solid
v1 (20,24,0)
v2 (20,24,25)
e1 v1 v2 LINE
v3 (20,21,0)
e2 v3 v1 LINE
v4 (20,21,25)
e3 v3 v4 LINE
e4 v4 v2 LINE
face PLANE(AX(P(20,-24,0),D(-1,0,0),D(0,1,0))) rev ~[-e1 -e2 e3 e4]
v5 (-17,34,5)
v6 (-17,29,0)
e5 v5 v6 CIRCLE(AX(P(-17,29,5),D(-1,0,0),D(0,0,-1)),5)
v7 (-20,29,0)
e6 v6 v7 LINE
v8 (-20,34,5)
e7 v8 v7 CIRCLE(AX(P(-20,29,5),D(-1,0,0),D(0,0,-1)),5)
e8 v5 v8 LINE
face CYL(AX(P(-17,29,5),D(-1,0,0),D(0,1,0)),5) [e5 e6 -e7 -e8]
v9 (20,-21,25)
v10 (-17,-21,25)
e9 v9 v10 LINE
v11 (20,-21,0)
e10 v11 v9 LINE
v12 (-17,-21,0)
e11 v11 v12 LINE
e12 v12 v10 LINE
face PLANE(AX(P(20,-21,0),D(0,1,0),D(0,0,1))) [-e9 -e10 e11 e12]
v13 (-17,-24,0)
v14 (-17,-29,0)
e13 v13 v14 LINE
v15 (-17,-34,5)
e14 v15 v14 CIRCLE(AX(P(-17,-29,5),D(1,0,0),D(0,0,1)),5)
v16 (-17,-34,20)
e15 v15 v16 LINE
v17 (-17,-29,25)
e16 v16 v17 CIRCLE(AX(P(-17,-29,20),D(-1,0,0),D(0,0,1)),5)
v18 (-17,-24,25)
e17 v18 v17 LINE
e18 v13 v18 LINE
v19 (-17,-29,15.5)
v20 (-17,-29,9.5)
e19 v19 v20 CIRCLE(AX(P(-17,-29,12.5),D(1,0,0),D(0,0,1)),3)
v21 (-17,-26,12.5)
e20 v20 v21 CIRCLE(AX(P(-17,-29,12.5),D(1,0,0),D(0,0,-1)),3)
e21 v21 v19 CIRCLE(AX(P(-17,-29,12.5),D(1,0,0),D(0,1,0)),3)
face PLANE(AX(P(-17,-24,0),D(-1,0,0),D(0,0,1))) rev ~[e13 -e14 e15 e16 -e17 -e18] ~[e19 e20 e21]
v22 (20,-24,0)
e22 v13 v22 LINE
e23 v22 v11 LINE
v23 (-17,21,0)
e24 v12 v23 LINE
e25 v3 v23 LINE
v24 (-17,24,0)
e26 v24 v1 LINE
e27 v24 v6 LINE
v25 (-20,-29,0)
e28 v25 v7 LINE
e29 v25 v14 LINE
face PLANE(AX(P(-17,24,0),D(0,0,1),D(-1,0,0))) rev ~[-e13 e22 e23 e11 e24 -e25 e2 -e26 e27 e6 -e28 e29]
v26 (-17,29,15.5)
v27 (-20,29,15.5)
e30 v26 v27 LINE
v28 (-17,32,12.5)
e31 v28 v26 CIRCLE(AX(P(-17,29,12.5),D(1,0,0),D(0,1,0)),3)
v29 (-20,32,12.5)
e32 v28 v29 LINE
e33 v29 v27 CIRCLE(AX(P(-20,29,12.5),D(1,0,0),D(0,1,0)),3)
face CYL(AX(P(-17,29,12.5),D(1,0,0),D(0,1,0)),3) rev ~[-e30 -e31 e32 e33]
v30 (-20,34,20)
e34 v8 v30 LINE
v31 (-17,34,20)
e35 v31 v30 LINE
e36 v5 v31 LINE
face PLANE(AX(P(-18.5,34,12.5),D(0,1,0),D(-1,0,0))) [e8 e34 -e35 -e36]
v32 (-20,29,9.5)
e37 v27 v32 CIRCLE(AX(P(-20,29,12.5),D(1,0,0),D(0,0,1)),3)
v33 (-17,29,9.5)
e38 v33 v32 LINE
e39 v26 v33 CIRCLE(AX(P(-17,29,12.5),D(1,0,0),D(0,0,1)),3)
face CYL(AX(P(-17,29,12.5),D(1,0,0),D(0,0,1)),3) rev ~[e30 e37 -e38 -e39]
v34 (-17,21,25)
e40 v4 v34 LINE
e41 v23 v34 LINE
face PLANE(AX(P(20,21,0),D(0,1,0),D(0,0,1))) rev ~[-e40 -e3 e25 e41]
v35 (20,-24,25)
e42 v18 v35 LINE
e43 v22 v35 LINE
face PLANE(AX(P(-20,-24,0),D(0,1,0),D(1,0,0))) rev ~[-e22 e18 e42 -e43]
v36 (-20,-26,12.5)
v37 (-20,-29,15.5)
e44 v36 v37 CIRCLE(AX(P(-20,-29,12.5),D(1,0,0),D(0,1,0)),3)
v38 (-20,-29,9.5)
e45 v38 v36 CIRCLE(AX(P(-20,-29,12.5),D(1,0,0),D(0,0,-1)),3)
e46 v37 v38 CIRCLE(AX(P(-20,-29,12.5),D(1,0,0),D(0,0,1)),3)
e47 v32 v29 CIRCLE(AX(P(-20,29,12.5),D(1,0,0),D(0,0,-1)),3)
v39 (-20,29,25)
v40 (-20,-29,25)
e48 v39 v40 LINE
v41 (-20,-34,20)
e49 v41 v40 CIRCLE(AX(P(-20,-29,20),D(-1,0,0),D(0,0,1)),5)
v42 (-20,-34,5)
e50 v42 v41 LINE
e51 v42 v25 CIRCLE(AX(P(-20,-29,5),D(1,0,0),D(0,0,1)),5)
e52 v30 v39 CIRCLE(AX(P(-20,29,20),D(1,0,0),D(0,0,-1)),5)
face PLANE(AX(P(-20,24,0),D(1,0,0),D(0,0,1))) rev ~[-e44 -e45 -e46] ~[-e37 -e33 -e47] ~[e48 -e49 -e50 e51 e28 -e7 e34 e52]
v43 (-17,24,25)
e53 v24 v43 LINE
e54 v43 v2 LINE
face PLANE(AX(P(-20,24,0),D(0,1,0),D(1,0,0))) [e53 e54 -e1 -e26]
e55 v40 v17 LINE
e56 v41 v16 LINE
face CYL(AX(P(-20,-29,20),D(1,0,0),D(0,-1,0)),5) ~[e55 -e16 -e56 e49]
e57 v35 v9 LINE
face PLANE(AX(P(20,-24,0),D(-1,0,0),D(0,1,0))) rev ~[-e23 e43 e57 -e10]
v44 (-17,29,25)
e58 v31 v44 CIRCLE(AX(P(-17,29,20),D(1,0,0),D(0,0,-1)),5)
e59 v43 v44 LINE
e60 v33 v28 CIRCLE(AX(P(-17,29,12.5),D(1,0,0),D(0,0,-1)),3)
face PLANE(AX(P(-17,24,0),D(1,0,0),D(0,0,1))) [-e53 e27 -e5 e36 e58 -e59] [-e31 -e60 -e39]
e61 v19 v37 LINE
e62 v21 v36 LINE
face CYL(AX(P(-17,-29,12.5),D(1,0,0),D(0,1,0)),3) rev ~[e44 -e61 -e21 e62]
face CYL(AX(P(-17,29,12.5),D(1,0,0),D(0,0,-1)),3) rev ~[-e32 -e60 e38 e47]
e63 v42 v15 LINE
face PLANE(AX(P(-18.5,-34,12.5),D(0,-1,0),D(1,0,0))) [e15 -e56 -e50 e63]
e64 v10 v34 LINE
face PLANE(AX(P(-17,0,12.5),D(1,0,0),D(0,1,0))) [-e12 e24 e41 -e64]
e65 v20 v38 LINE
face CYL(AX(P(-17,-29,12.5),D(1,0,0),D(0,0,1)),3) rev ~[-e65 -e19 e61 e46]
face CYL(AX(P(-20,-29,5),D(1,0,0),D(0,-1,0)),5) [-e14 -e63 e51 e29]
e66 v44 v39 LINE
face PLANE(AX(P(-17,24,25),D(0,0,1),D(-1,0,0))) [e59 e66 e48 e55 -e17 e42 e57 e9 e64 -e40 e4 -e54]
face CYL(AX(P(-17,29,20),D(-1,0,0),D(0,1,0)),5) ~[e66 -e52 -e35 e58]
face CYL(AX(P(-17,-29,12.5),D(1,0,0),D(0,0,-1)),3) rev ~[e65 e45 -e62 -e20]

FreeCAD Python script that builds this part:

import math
import FreeCAD as App
import Part
import Sketcher

V = App.Vector
Q = App.Units.Quantity


def edges_at(feature, points):
    """Names of the edges that pass closest to the given points."""
    edges = feature.Shape.Edges
    near = lambda p: min(range(len(edges)), key=lambda i: edges[i].distToShape(Part.Vertex(*p))[0])
    return sorted({f"Edge{near(p) + 1}" for p in points})


def add_polygon(sketch, points):
    """Adds a closed chain of lines whose ends are joined by coincident constraints."""
    first, n = sketch.GeometryCount, len(points)
    for a, b in zip(points, points[1:] + points[:1]):
        sketch.addGeometry(Part.LineSegment(App.Vector(*a, 0), App.Vector(*b, 0)), False)
    for i in range(n):
        sketch.addConstraint(Sketcher.Constraint("Coincident", first + i, 2, first + (i + 1) % n, 1))

doc = App.newDocument("Part")
body = doc.addObject("PartDesign::Body", "Body")

# Sketch on XY plane
sketch1 = doc.addObject("Sketcher::SketchObject", "Sketch")
body.addObject(sketch1)
sketch1.AttachmentSupport = (doc.XY_Plane, [""])
sketch1.MapMode = "FlatFace"
add_polygon(sketch1, [(-20, 24), (-20, -24), (20, -24), (20, 24)])  # lines 0-3
sketch1.addConstraint(Sketcher.Constraint("Vertical", 0))
sketch1.addConstraint(Sketcher.Constraint("Horizontal", 1))
sketch1.addConstraint(Sketcher.Constraint("Vertical", 2))
sketch1.addConstraint(Sketcher.Constraint("Horizontal", 3))
sketch1.addConstraint(Sketcher.Constraint("Symmetric", 0, 2, 2, 2, -1, 1))
sketch1.addConstraint(Sketcher.Constraint("DistanceX", 1, 1, 1, 2, Q("40 mm")))
sketch1.addConstraint(Sketcher.Constraint("DistanceY", 0, 2, 0, 1, Q("48 mm")))
pad1 = doc.addObject("PartDesign::Pad", "Pad")
body.addObject(pad1)
pad1.Profile = sketch1
pad1.Length = 25

# Sketch on YZ plane
sketch2 = doc.addObject("Sketcher::SketchObject", "Sketch001")
body.addObject(sketch2)
sketch2.AttachmentSupport = (doc.YZ_Plane, [""])
sketch2.MapMode = "FlatFace"
sketch2.AttachmentOffset = App.Placement(V(0, 0, 20), App.Rotation())
add_polygon(sketch2, [(-21, 25), (-21, 0), (21, 0), (21, 25)])  # lines 0-3
sketch2.addConstraint(Sketcher.Constraint("Vertical", 0))
sketch2.addConstraint(Sketcher.Constraint("Horizontal", 1))
sketch2.addConstraint(Sketcher.Constraint("Vertical", 2))
sketch2.addConstraint(Sketcher.Constraint("Horizontal", 3))
sketch2.addConstraint(Sketcher.Constraint("Symmetric", 0, 2, 1, 2, -1, 1))
sketch2.addConstraint(Sketcher.Constraint("DistanceX", 1, 1, 1, 2, Q("42 mm")))
sketch2.addConstraint(Sketcher.Constraint("DistanceY", 0, 2, 0, 1, Q("25 mm")))
pocket1 = doc.addObject("PartDesign::Pocket", "Pocket")
body.addObject(pocket1)
pocket1.Profile = sketch2
pocket1.Length = 37

# Sketch on XZ plane
sketch3 = doc.addObject("Sketcher::SketchObject", "Sketch002")
body.addObject(sketch3)
sketch3.AttachmentSupport = (doc.XZ_Plane, [""])
sketch3.MapMode = "FlatFace"
sketch3.AttachmentOffset = App.Placement(V(0, 0, 24), App.Rotation())
add_polygon(sketch3, [(-20, 25), (-20, 0), (-17, 0), (-17, 25)])  # lines 0-3
sketch3.addConstraint(Sketcher.Constraint("Vertical", 0))
sketch3.addConstraint(Sketcher.Constraint("Horizontal", 1))
sketch3.addConstraint(Sketcher.Constraint("Vertical", 2))
sketch3.addConstraint(Sketcher.Constraint("Horizontal", 3))
sketch3.addConstraint(Sketcher.Constraint("PointOnObject", 0, 2, -1))
sketch3.addConstraint(Sketcher.Constraint("DistanceX", 1, 1, 1, 2, Q("3 mm")))
sketch3.addConstraint(Sketcher.Constraint("DistanceY", 0, 2, 0, 1, Q("25 mm")))
sketch3.addConstraint(Sketcher.Constraint("DistanceX", 0, 2, -1, 1, Q("20 mm")))
pad2 = doc.addObject("PartDesign::Pad", "Pad001")
body.addObject(pad2)
pad2.Profile = sketch3
pad2.Length = 10

# Sketch on XZ plane
sketch4 = doc.addObject("Sketcher::SketchObject", "Sketch003")
body.addObject(sketch4)
sketch4.AttachmentSupport = (doc.XZ_Plane, [""])
sketch4.MapMode = "FlatFace"
sketch4.AttachmentOffset = App.Placement(V(0, 0, -24), App.Rotation())
add_polygon(sketch4, [(-17, 25), (-17, 0), (-20, 0), (-20, 25)])  # lines 0-3
sketch4.addConstraint(Sketcher.Constraint("Vertical", 0))
sketch4.addConstraint(Sketcher.Constraint("Horizontal", 1))
sketch4.addConstraint(Sketcher.Constraint("Vertical", 2))
sketch4.addConstraint(Sketcher.Constraint("Horizontal", 3))
sketch4.addConstraint(Sketcher.Constraint("PointOnObject", 0, 2, -1))
sketch4.addConstraint(Sketcher.Constraint("DistanceX", 1, 2, 1, 1, Q("3 mm")))
sketch4.addConstraint(Sketcher.Constraint("DistanceY", 0, 2, 0, 1, Q("25 mm")))
sketch4.addConstraint(Sketcher.Constraint("DistanceX", 0, 2, -1, 1, Q("17 mm")))
pad3 = doc.addObject("PartDesign::Pad", "Pad002")
body.addObject(pad3)
pad3.Profile = sketch4
pad3.Length = 10
pad3.Reversed = True
doc.recompute()

fillet = doc.addObject("PartDesign::Fillet", "Fillet")
body.addObject(fillet)
fillet.Base = (pad3, edges_at(pad3, [
    (-18.5, 34, 0),
    (-18.5, 34, 25),
    (-18.5, -34, 0),
    (-18.5, -34, 25),
]))
fillet.Radius = 5

# Sketch on YZ plane
sketch5 = doc.addObject("Sketcher::SketchObject", "Sketch004")
body.addObject(sketch5)
sketch5.AttachmentSupport = (doc.YZ_Plane, [""])
sketch5.MapMode = "FlatFace"
sketch5.AttachmentOffset = App.Placement(V(0, 0, -17), App.Rotation())
sketch5.addGeometry(Part.ArcOfCircle(Part.Circle(V(29, 12.5, 0), V(0, 0, 1), 3), math.radians(90), math.radians(270)), False)
sketch5.addGeometry(Part.ArcOfCircle(Part.Circle(V(29, 12.5, 0), V(0, 0, 1), 3), math.radians(-90), math.radians(0)), False)
sketch5.addGeometry(Part.ArcOfCircle(Part.Circle(V(29, 12.5, 0), V(0, 0, 1), 3), math.radians(0), math.radians(90)), False)
sketch5.addGeometry(Part.ArcOfCircle(Part.Circle(V(-29, 12.5, 0), V(0, 0, 1), 3), math.radians(90), math.radians(270)), False)
sketch5.addGeometry(Part.ArcOfCircle(Part.Circle(V(-29, 12.5, 0), V(0, 0, 1), 3), math.radians(-90), math.radians(0)), False)
sketch5.addGeometry(Part.ArcOfCircle(Part.Circle(V(-29, 12.5, 0), V(0, 0, 1), 3), math.radians(0), math.radians(90)), False)
sketch5.addConstraint(Sketcher.Constraint("Tangent", 0, 2, 1, 1))
sketch5.addConstraint(Sketcher.Constraint("Tangent", 1, 2, 2, 1))
sketch5.addConstraint(Sketcher.Constraint("Tangent", 2, 2, 0, 1))
sketch5.addConstraint(Sketcher.Constraint("Tangent", 3, 2, 4, 1))
sketch5.addConstraint(Sketcher.Constraint("Tangent", 4, 2, 5, 1))
sketch5.addConstraint(Sketcher.Constraint("Tangent", 5, 2, 3, 1))
sketch5.addConstraint(Sketcher.Constraint("Equal", 2, 3))
sketch5.addConstraint(Sketcher.Constraint("Symmetric", 0, 3, 3, 3, -2))
sketch5.addConstraint(Sketcher.Constraint("Horizontal", 5, 3, 1, 2))
sketch5.addConstraint(Sketcher.Constraint("Horizontal", 1, 2, 4, 2))
sketch5.addConstraint(Sketcher.Constraint("Vertical", 2, 3, 0, 2))
sketch5.addConstraint(Sketcher.Constraint("Vertical", 0, 2, 2, 2))
sketch5.addConstraint(Sketcher.Constraint("Vertical", 5, 3, 3, 2))
sketch5.addConstraint(Sketcher.Constraint("Vertical", 3, 2, 5, 2))
sketch5.addConstraint(Sketcher.Constraint("Radius", 0, Q("3 mm")))
sketch5.addConstraint(Sketcher.Constraint("DistanceX", -1, 1, 0, 3, Q("29 mm")))
sketch5.addConstraint(Sketcher.Constraint("DistanceY", -1, 1, 0, 3, Q("12.5 mm")))
pocket2 = doc.addObject("PartDesign::Pocket", "Pocket001")
body.addObject(pocket2)
pocket2.Profile = sketch5
pocket2.Length = 25

doc.recompute()
